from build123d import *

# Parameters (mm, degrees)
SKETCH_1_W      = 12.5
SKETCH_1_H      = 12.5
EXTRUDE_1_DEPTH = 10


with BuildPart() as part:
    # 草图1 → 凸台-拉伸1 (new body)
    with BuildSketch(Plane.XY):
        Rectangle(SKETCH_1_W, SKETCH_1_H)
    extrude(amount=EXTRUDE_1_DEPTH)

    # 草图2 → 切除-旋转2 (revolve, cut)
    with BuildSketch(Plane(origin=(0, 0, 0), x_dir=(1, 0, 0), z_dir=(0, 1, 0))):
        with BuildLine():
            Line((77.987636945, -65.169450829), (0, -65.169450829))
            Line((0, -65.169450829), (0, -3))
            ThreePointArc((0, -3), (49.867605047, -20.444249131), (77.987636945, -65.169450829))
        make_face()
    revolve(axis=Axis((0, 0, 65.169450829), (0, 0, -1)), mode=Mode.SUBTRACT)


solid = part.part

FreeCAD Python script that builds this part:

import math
import FreeCAD as App
import Part
import Sketcher

V = App.Vector
Q = App.Units.Quantity

doc = App.newDocument("Part")
params = doc.addObject("Spreadsheet::Sheet", "Params")
for row, (alias, value) in enumerate([
    ("sketch1_width", "12.5 mm"),
    ("pad1_length", "10 mm"),
    ("sketch2_radius", "80 mm"),
    ("groove_angle", "360 deg"),
], start=1):
    params.set(f"A{row}", alias)
    params.set(f"B{row}", "=" + value)
    params.setAlias(f"B{row}", alias)

body = doc.addObject("PartDesign::Body", "Body")

# Sketch on XY plane
sketch1 = body.newObject("Sketcher::SketchObject", "Sketch")
sketch1.AttachmentSupport = (doc.getObject("XY_Plane"), [""])
sketch1.MapMode = "FlatFace"
sketch1.addGeometry(Part.LineSegment(V(-6.25, 6.25, 0), V(-6.25, -6.25, 0)), False)
sketch1.addGeometry(Part.LineSegment(V(-6.25, -6.25, 0), V(6.25, -6.25, 0)), False)
sketch1.addGeometry(Part.LineSegment(V(6.25, -6.25, 0), V(6.25, 6.25, 0)), False)
sketch1.addGeometry(Part.LineSegment(V(6.25, 6.25, 0), V(-6.25, 6.25, 0)), False)
sketch1.addConstraint(Sketcher.Constraint("Coincident", 0, 2, 1, 1))
sketch1.addConstraint(Sketcher.Constraint("Coincident", 1, 2, 2, 1))
sketch1.addConstraint(Sketcher.Constraint("Coincident", 2, 2, 3, 1))
sketch1.addConstraint(Sketcher.Constraint("Coincident", 3, 2, 0, 1))
sketch1.addConstraint(Sketcher.Constraint("Vertical", 0))
sketch1.addConstraint(Sketcher.Constraint("Horizontal", 1))
sketch1.addConstraint(Sketcher.Constraint("Vertical", 2))
sketch1.addConstraint(Sketcher.Constraint("Horizontal", 3))
sketch1.addConstraint(Sketcher.Constraint("Symmetric", 0, 2, 2, 2, -1, 1))
sketch1.addConstraint(Sketcher.Constraint("Equal", 3, 0))
sketch1.addConstraint(Sketcher.Constraint("DistanceX", 1, 1, 1, 2, Q("12.5 mm")))
sketch1.setExpression("Constraints[10]", "Params.sketch1_width")
pad1 = body.newObject("PartDesign::Pad", "Pad")
pad1.Profile = sketch1
pad1.setExpression("Length", "Params.pad1_length")

# Sketch on XZ plane
sketch2 = body.newObject("Sketcher::SketchObject", "Sketch001")
sketch2.AttachmentSupport = (doc.getObject("XZ_Plane"), [""])
sketch2.MapMode = "FlatFace"
sketch2.addGeometry(Part.LineSegment(V(0, 65.169451, 0), V(77.987637, 65.169451, 0)), False)
sketch2.addGeometry(Part.ArcOfCircle(Part.Circle(V(0, 83, 0), V(0, 0, 1), 80), math.radians(-90), math.radians(-12.878355)), False)
sketch2.addGeometry(Part.LineSegment(V(0, 3, 0), V(0, 65.169451, 0)), False)
sketch2.addConstraint(Sketcher.Constraint("Coincident", 0, 2, 1, 2))
sketch2.addConstraint(Sketcher.Constraint("Coincident", 1, 1, 2, 1))
sketch2.addConstraint(Sketcher.Constraint("Coincident", 2, 2, 0, 1))
sketch2.addConstraint(Sketcher.Constraint("Horizontal", 0))
sketch2.addConstraint(Sketcher.Constraint("Vertical", 2))
sketch2.addConstraint(Sketcher.Constraint("PointOnObject", 1, 3, -2))
sketch2.addConstraint(Sketcher.Constraint("PointOnObject", 1, 1, -2))
sketch2.addConstraint(Sketcher.Constraint("Radius", 1, Q("80 mm")))
sketch2.addConstraint(Sketcher.Constraint("DistanceY", -1, 1, 1, 3, Q("83 mm")))
sketch2.addConstraint(Sketcher.Constraint("DistanceY", 2, 1, 2, 2, Q("62.169451 mm")))
sketch2.setExpression("Constraints[7]", "Params.sketch2_radius")
groove = body.newObject("PartDesign::Groove", "Groove")
groove.Profile = sketch2
groove.ReferenceAxis = (sketch2, ["V_Axis"])
groove.setExpression("Angle", "Params.groove_angle")

doc.recompute()
